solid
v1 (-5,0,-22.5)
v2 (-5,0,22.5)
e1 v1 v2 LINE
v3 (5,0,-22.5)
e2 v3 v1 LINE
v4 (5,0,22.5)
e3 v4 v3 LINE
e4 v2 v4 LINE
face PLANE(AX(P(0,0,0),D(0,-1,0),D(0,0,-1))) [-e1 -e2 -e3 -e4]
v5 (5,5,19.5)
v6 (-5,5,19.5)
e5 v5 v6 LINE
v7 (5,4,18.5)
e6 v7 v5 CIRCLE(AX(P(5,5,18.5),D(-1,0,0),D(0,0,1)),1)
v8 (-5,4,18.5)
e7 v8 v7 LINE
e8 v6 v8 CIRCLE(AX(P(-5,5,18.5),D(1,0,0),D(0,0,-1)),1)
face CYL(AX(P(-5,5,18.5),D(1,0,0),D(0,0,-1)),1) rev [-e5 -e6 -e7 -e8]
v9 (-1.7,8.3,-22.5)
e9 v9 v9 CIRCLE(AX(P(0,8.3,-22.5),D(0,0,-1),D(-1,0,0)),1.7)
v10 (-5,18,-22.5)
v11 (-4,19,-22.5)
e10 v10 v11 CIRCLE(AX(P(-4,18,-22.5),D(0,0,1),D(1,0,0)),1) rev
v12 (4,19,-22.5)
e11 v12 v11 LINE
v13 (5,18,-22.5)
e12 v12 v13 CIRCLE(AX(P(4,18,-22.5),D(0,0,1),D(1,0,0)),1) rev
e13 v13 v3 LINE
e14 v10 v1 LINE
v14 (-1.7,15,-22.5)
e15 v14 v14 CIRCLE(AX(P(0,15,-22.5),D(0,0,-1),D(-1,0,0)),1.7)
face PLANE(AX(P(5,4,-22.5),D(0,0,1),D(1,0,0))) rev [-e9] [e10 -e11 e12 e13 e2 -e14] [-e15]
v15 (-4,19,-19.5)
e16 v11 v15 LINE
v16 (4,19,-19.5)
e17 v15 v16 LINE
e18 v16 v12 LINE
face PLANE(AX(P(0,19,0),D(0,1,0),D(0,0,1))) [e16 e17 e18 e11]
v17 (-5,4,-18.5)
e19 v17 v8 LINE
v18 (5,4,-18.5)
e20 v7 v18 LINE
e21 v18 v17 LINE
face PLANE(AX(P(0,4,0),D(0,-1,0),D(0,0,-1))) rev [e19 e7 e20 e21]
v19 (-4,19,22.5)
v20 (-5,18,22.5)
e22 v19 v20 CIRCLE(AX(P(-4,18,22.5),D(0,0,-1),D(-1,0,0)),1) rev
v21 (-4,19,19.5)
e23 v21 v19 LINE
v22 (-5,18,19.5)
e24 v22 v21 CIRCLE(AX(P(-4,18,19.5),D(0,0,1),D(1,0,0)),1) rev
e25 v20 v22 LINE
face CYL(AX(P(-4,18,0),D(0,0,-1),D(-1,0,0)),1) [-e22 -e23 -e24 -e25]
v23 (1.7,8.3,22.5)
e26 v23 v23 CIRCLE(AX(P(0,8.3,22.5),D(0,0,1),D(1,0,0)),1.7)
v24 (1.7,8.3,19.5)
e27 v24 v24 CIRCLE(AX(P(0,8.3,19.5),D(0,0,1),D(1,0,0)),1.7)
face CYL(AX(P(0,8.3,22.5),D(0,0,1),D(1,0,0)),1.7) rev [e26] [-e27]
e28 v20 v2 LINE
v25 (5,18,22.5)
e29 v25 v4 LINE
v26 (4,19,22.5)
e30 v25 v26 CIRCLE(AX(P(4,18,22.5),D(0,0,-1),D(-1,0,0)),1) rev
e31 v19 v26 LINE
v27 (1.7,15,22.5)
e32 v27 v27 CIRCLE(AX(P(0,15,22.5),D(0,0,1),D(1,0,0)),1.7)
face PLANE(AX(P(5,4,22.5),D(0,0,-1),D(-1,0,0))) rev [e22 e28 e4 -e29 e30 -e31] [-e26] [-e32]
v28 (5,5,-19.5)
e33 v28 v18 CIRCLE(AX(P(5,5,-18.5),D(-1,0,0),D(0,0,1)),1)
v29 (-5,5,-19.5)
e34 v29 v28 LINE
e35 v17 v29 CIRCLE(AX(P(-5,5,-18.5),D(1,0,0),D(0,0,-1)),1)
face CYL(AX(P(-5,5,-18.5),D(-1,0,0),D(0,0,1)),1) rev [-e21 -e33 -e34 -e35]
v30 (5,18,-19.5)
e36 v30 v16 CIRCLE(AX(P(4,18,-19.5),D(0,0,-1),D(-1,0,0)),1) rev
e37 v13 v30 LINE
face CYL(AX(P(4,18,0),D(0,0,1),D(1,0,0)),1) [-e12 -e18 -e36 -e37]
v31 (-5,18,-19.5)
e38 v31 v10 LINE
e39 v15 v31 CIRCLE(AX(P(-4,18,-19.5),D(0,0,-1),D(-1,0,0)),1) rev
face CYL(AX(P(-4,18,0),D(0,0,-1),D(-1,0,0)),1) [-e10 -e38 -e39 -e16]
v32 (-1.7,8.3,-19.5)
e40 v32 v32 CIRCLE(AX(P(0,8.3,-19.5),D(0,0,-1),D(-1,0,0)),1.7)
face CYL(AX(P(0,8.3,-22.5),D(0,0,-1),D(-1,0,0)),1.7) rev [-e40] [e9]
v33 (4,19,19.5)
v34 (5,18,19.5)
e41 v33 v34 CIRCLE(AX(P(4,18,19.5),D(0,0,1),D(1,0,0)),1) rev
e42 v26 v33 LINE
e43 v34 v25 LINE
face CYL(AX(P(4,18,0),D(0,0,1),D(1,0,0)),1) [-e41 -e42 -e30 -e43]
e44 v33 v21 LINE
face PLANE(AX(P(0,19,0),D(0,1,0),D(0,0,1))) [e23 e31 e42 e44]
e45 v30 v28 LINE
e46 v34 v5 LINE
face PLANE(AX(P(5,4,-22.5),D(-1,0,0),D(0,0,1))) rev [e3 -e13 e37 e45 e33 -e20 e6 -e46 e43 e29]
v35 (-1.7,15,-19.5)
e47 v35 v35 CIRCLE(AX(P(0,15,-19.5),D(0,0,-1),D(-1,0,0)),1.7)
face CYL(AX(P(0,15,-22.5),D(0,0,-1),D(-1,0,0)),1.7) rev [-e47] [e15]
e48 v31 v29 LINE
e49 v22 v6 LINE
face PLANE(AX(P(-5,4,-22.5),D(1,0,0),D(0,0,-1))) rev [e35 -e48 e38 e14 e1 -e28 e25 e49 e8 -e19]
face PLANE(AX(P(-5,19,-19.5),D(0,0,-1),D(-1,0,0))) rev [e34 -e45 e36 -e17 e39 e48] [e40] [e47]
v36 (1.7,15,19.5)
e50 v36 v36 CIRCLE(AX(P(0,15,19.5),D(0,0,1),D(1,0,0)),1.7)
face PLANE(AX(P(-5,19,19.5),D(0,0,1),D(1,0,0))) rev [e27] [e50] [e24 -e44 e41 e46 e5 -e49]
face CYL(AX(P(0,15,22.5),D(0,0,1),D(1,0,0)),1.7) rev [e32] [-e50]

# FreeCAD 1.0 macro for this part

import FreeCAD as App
import Part
import Sketcher
Q = App.Units.Quantity


def edges_at(feature, points):
    """Names of the edges that pass closest to the given points."""
    edges = feature.Shape.Edges
    near = lambda p: min(range(len(edges)), key=lambda i: edges[i].distToShape(Part.Vertex(*p))[0])
    return sorted({f"Edge{near(p) + 1}" for p in points})

doc = App.newDocument("Part")
body = doc.addObject("PartDesign::Body", "Body")

# Sketch on XZ plane
sketch1 = body.newObject("Sketcher::SketchObject", "Sketch")
sketch1.AttachmentSupport = (doc.getObject("XZ_Plane"), [""])
sketch1.MapMode = "FlatFace"
sketch1.addGeometry([
    Part.LineSegment(App.Vector(-5, -22.5, 0), App.Vector(-5, 22.5, 0)),
    Part.LineSegment(App.Vector(-5, 22.5, 0), App.Vector(5, 22.5, 0)),
    Part.LineSegment(App.Vector(5, 22.5, 0), App.Vector(5, -22.5, 0)),
    Part.LineSegment(App.Vector(5, -22.5, 0), App.Vector(-5, -22.5, 0)),
], False)
sketch1.addConstraint([
    Sketcher.Constraint("Coincident", 0, 2, 1, 1),
    Sketcher.Constraint("Coincident", 1, 2, 2, 1),
    Sketcher.Constraint("Coincident", 2, 2, 3, 1),
    Sketcher.Constraint("Coincident", 3, 2, 0, 1),
    Sketcher.Constraint("Vertical", 0),
    Sketcher.Constraint("Horizontal", 1),
    Sketcher.Constraint("Vertical", 2),
    Sketcher.Constraint("Horizontal", 3),
    Sketcher.Constraint("Symmetric", 0, 2, 2, 2, -1, 1),
    Sketcher.Constraint("DistanceX", 1, 1, 1, 2, Q("10 mm")),
    Sketcher.Constraint("DistanceY", 0, 1, 0, 2, Q("45 mm")),
])
pad1 = body.newObject("PartDesign::Pad", "Pad")
pad1.Profile = sketch1
pad1.Length = 4
pad1.Reversed = True

# Sketch on XZ plane
sketch2 = body.newObject("Sketcher::SketchObject", "Sketch001")
sketch2.AttachmentSupport = (doc.getObject("XZ_Plane"), [""])
sketch2.MapMode = "FlatFace"
sketch2.AttachmentOffset = App.Placement(App.Vector(0, 0, -4), App.Rotation())
sketch2.addGeometry([
    Part.LineSegment(App.Vector(-5, -22.5, 0), App.Vector(-5, -19.5, 0)),  # 0
    Part.LineSegment(App.Vector(-5, -19.5, 0), App.Vector(5, -19.5, 0)),  # 1
    Part.LineSegment(App.Vector(5, -19.5, 0), App.Vector(5, -22.5, 0)),  # 2
    Part.LineSegment(App.Vector(5, -22.5, 0), App.Vector(-5, -22.5, 0)),  # 3
    Part.LineSegment(App.Vector(-5, 19.5, 0), App.Vector(-5, 22.5, 0)),  # 4
    Part.LineSegment(App.Vector(-5, 22.5, 0), App.Vector(5, 22.5, 0)),  # 5
    Part.LineSegment(App.Vector(5, 22.5, 0), App.Vector(5, 19.5, 0)),  # 6
    Part.LineSegment(App.Vector(5, 19.5, 0), App.Vector(-5, 19.5, 0)),  # 7
], False)
sketch2.addConstraint([
    Sketcher.Constraint("Coincident", 0, 2, 1, 1),
    Sketcher.Constraint("Coincident", 1, 2, 2, 1),
    Sketcher.Constraint("Coincident", 2, 2, 3, 1),
    Sketcher.Constraint("Coincident", 3, 2, 0, 1),
    Sketcher.Constraint("Coincident", 4, 2, 5, 1),
    Sketcher.Constraint("Coincident", 5, 2, 6, 1),
    Sketcher.Constraint("Coincident", 6, 2, 7, 1),
    Sketcher.Constraint("Coincident", 7, 2, 4, 1),
    Sketcher.Constraint("Vertical", 0),
    Sketcher.Constraint("Horizontal", 1),
    Sketcher.Constraint("Vertical", 2),
    Sketcher.Constraint("Horizontal", 3),
    Sketcher.Constraint("Vertical", 4),
    Sketcher.Constraint("Horizontal", 5),
    Sketcher.Constraint("Vertical", 6),
    Sketcher.Constraint("Horizontal", 7),
    Sketcher.Constraint("Symmetric", 2, 2, 4, 2, -1, 1),
    Sketcher.Constraint("Symmetric", 0, 2, 6, 2, -1, 1),
    Sketcher.Constraint("Vertical", 3, 2, 4, 2),
    Sketcher.Constraint("DistanceX", 1, 1, 1, 2, Q("10 mm")),
    Sketcher.Constraint("DistanceY", 0, 1, 0, 2, Q("3 mm")),
    Sketcher.Constraint("DistanceY", 0, 2, 4, 2, Q("42 mm")),
])
pad2 = body.newObject("PartDesign::Pad", "Pad001")
pad2.Profile = sketch2
pad2.Length = 15
pad2.Reversed = True

# Sketch on XY plane
sketch3 = body.newObject("Sketcher::SketchObject", "Sketch002")
sketch3.AttachmentSupport = (doc.getObject("XY_Plane"), [""])
sketch3.MapMode = "FlatFace"
sketch3.AttachmentOffset = App.Placement(App.Vector(0, 0, -22.5), App.Rotation())
sketch3.addGeometry([
    Part.Circle(App.Vector(0, 15, 0), App.Vector(0, 0, 1), 1.7),
    Part.Circle(App.Vector(0, 8.3, 0), App.Vector(0, 0, 1), 1.7),
], False)
sketch3.addConstraint([
    Sketcher.Constraint("Equal", 0, 1),
    Sketcher.Constraint("PointOnObject", 0, 3, -2),
    Sketcher.Constraint("PointOnObject", 1, 3, -2),
    Sketcher.Constraint("Diameter", 0, Q("3.4 mm")),
    Sketcher.Constraint("DistanceY", -1, 1, 0, 3, Q("15 mm")),
    Sketcher.Constraint("DistanceY", -1, 1, 1, 3, Q("8.3 mm")),
])
doc.recompute()
hole = body.newObject("PartDesign::Hole", "Hole")
hole.Profile = sketch3
hole.ThreadType = "None"
hole.Diameter = 3.4
hole.DepthType = "ThroughAll"
hole.Reversed = True

# Sketch on XY plane
sketch4 = body.newObject("Sketcher::SketchObject", "Sketch003")
sketch4.AttachmentSupport = (doc.getObject("XY_Plane"), [""])
sketch4.MapMode = "FlatFace"
sketch4.AttachmentOffset = App.Placement(App.Vector(0, 0, 22.5), App.Rotation())
sketch4.addGeometry([
    Part.Circle(App.Vector(0, 15, 0), App.Vector(0, 0, 1), 1.7),
    Part.Circle(App.Vector(0, 8.3, 0), App.Vector(0, 0, 1), 1.7),
], False)
sketch4.addConstraint([
    Sketcher.Constraint("Equal", 0, 1),
    Sketcher.Constraint("PointOnObject", 0, 3, -2),
    Sketcher.Constraint("PointOnObject", 1, 3, -2),
    Sketcher.Constraint("Diameter", 0, Q("3.4 mm")),
    Sketcher.Constraint("DistanceY", -1, 1, 0, 3, Q("15 mm")),
    Sketcher.Constraint("DistanceY", -1, 1, 1, 3, Q("8.3 mm")),
])
doc.recompute()
hole2 = body.newObject("PartDesign::Hole", "Hole001")
hole2.Profile = sketch4
hole2.ThreadType = "None"
hole2.Diameter = 3.4
hole2.DepthType = "ThroughAll"
doc.recompute()

fillet = body.newObject("PartDesign::Fillet", "Fillet")
fillet.Base = (hole2, edges_at(hole2, [
    (0, 4, -19.5),
    (-5, 19, -21),
    (5, 19, -21),
    (0, 4, 19.5),
    (5, 19, 21),
    (-5, 19, 21),
]))
fillet.Radius = 1

doc.recompute()
